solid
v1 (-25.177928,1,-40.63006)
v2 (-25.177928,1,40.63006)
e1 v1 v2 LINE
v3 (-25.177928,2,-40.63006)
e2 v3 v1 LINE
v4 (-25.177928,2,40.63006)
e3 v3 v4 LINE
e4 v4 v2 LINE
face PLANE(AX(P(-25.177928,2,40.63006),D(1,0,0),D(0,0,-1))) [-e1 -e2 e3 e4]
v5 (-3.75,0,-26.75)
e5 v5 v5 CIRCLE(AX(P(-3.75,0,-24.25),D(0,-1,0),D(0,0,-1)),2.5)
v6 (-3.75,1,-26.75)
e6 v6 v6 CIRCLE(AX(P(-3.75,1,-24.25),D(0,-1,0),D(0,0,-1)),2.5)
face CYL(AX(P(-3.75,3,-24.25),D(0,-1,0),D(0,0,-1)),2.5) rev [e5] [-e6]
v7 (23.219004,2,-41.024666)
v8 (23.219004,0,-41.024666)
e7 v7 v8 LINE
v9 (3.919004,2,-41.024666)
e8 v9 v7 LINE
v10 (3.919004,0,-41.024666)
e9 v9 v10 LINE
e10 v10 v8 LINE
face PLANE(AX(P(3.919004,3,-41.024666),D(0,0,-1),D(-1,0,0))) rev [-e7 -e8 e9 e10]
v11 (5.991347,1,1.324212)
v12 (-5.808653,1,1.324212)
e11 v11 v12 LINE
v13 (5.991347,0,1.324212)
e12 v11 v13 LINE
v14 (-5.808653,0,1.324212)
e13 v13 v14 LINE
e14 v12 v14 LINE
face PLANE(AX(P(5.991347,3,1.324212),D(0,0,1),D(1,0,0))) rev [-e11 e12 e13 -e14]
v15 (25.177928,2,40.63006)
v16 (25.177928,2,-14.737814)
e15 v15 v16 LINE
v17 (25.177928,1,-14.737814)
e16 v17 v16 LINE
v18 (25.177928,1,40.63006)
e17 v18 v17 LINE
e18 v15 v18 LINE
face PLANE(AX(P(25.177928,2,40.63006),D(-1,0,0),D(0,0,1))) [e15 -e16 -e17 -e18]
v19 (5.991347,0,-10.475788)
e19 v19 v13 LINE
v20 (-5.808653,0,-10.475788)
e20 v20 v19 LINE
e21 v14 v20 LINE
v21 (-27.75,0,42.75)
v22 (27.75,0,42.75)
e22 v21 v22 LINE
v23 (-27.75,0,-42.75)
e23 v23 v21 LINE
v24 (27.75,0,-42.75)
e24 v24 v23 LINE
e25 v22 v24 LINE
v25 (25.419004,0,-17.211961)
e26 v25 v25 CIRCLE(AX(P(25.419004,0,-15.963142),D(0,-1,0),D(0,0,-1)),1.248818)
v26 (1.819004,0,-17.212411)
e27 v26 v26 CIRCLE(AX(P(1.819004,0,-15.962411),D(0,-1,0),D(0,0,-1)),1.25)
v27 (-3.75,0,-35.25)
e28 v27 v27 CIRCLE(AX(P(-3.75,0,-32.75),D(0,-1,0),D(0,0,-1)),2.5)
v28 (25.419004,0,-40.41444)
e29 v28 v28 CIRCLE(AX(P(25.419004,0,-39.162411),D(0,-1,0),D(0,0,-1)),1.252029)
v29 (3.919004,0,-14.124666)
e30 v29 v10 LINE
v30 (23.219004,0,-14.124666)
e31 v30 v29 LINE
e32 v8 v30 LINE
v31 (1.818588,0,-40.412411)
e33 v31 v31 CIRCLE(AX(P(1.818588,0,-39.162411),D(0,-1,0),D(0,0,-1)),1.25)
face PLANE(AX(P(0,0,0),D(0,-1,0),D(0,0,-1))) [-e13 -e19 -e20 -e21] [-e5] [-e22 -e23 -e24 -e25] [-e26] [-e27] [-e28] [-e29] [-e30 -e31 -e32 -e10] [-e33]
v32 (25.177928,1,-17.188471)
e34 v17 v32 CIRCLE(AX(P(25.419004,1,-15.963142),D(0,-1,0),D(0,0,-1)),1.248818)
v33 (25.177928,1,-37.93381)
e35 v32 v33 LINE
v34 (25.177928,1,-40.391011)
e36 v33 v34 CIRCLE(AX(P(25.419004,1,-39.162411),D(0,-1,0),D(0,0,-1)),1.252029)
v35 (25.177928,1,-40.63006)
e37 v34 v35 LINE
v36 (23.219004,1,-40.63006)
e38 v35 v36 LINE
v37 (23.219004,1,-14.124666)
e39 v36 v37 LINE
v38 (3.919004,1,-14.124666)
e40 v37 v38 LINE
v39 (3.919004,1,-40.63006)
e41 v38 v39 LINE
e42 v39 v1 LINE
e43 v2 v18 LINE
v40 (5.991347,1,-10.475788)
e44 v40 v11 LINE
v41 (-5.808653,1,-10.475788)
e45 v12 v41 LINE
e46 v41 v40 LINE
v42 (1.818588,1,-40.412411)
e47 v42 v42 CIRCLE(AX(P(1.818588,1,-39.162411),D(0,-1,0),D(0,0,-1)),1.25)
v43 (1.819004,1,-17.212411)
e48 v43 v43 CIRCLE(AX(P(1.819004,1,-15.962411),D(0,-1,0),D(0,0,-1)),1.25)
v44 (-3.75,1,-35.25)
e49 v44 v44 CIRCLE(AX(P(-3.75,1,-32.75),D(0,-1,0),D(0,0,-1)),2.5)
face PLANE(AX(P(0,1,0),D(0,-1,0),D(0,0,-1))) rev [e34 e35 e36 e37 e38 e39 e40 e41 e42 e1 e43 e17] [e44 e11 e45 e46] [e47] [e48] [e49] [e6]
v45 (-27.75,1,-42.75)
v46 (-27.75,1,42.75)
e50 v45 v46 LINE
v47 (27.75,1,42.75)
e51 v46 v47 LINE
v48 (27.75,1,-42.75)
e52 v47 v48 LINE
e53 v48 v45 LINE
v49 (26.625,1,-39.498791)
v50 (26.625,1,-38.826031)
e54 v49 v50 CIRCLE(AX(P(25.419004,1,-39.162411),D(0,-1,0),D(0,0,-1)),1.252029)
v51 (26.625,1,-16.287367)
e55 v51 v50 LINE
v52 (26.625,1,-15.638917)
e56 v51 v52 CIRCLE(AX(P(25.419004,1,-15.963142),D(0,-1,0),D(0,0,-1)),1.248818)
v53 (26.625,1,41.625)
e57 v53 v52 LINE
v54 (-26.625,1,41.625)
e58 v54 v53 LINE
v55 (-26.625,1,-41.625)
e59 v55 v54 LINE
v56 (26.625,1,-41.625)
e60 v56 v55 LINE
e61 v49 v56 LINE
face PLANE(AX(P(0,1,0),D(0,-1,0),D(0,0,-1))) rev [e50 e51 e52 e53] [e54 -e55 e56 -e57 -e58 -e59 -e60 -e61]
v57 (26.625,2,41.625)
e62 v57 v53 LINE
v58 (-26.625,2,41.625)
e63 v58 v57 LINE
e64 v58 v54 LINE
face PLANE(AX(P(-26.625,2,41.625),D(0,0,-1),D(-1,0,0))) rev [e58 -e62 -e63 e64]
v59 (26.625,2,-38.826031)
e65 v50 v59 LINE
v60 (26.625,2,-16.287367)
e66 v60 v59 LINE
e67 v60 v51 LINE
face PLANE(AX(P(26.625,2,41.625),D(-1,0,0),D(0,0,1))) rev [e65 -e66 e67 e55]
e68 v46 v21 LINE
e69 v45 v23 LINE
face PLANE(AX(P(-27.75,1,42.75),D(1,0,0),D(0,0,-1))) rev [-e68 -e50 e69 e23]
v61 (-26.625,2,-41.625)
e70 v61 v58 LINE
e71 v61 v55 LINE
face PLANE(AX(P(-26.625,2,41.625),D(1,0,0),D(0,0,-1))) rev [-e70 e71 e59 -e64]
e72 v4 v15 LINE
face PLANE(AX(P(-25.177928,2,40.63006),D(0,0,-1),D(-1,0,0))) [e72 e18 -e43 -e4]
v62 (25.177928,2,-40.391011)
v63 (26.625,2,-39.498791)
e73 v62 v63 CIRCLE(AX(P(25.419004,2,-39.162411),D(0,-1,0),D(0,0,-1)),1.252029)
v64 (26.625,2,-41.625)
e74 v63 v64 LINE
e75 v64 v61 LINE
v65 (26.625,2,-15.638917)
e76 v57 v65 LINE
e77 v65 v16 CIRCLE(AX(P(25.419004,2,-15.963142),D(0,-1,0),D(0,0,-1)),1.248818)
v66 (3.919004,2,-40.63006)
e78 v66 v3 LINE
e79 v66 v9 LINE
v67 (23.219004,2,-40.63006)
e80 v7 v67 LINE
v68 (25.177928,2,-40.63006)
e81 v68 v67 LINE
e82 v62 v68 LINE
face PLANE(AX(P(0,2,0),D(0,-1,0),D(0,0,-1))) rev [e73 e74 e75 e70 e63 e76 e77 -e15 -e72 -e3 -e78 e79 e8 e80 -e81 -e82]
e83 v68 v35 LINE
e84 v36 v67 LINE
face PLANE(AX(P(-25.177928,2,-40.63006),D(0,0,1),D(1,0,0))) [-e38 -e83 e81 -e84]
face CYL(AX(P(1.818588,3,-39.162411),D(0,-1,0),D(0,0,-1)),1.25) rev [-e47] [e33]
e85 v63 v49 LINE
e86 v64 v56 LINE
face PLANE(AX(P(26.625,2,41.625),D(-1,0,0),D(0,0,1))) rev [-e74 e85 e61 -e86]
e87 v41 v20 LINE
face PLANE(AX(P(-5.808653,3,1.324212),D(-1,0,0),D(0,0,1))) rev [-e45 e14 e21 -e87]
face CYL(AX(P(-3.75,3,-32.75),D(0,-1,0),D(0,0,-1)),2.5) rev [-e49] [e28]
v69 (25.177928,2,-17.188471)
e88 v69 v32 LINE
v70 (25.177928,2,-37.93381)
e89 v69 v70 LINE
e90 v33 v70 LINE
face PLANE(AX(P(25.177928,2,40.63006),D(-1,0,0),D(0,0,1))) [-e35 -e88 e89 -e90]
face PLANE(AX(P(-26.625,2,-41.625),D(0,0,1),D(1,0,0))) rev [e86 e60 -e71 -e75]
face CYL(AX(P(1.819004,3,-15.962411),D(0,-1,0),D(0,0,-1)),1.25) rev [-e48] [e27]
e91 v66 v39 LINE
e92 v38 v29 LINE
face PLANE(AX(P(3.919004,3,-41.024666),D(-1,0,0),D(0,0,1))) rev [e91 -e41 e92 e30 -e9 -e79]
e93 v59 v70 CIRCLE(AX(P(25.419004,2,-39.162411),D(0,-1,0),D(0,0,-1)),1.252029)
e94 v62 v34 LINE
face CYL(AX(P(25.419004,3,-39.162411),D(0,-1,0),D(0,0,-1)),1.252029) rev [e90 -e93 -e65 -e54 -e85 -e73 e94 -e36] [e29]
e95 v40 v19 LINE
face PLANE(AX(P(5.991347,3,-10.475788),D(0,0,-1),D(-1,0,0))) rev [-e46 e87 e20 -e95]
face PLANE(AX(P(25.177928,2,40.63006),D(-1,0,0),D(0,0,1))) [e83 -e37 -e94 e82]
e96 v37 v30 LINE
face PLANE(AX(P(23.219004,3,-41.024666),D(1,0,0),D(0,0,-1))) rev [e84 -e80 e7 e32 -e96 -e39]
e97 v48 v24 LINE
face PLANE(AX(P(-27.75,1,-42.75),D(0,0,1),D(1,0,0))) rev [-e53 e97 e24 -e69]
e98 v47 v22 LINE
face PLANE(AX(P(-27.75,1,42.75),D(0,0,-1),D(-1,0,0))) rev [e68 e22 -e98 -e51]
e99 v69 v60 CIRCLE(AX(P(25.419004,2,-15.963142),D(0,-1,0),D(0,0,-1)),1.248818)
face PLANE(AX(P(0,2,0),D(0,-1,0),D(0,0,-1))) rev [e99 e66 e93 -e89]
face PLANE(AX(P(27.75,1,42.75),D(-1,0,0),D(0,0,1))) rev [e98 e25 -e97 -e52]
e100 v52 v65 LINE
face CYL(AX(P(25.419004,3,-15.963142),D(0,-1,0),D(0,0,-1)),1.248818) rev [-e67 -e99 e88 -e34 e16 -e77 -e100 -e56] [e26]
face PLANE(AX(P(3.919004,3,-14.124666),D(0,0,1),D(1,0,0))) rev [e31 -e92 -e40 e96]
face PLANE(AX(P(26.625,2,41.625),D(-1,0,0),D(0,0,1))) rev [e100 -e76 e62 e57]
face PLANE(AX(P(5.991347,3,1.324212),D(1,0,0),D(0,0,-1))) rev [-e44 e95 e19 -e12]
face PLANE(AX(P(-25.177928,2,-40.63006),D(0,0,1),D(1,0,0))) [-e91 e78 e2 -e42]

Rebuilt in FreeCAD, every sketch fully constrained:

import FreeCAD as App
import Part
import Sketcher
from FreeCAD import Vector

doc = App.newDocument("Part")
body = doc.addObject("PartDesign::Body", "Body")

# Sketch on XZ plane
sketch1 = doc.addObject("Sketcher::SketchObject", "Sketch")
body.addObject(sketch1)
sketch1.AttachmentSupport = (doc.XZ_Plane, [""])
sketch1.MapMode = "FlatFace"
sketch1.addGeometry(Part.LineSegment(Vector(-27.75, -42.75, 0), Vector(-27.75, 42.75, 0)), False)
sketch1.addGeometry(Part.LineSegment(Vector(-27.75, 42.75, 0), Vector(27.75, 42.75, 0)), False)
sketch1.addGeometry(Part.LineSegment(Vector(27.75, 42.75, 0), Vector(27.75, -42.75, 0)), False)
sketch1.addGeometry(Part.LineSegment(Vector(27.75, -42.75, 0), Vector(-27.75, -42.75, 0)), False)
sketch1.addConstraint(Sketcher.Constraint("Coincident", 0, 2, 1, 1))
sketch1.addConstraint(Sketcher.Constraint("Coincident", 1, 2, 2, 1))
sketch1.addConstraint(Sketcher.Constraint("Coincident", 2, 2, 3, 1))
sketch1.addConstraint(Sketcher.Constraint("Coincident", 3, 2, 0, 1))
sketch1.addConstraint(Sketcher.Constraint("Vertical", 0))
sketch1.addConstraint(Sketcher.Constraint("Horizontal", 1))
sketch1.addConstraint(Sketcher.Constraint("Vertical", 2))
sketch1.addConstraint(Sketcher.Constraint("Horizontal", 3))
sketch1.addConstraint(Sketcher.Constraint("Symmetric", 0, 2, 2, 2, -1, 1))
sketch1.addConstraint(Sketcher.Constraint("DistanceX", 1, 1, 1, 2, 55.5))
sketch1.addConstraint(Sketcher.Constraint("DistanceY", 0, 1, 0, 2, 85.5))
pad1 = doc.addObject("PartDesign::Pad", "Pad")
body.addObject(pad1)
pad1.Profile = sketch1
pad1.Length = 1
pad1.Reversed = True

# Sketch on XZ plane
sketch2 = doc.addObject("Sketcher::SketchObject", "Sketch001")
body.addObject(sketch2)
sketch2.AttachmentSupport = (doc.XZ_Plane, [""])
sketch2.MapMode = "FlatFace"
sketch2.AttachmentOffset = App.Placement(Vector(0, 0, -1), App.Rotation())
sketch2.addGeometry(Part.LineSegment(Vector(-26.625, -41.625, 0), Vector(-26.625, 41.625, 0)), False)
sketch2.addGeometry(Part.LineSegment(Vector(-26.625, 41.625, 0), Vector(26.625, 41.625, 0)), False)
sketch2.addGeometry(Part.LineSegment(Vector(26.625, 41.625, 0), Vector(26.625, -41.625, 0)), False)
sketch2.addGeometry(Part.LineSegment(Vector(26.625, -41.625, 0), Vector(-26.625, -41.625, 0)), False)
sketch2.addGeometry(Part.LineSegment(Vector(25.177928, 40.63006, 0), Vector(-25.177928, 40.63006, 0)), False)
sketch2.addGeometry(Part.LineSegment(Vector(-25.177928, 40.63006, 0), Vector(-25.177928, -40.63006, 0)), False)
sketch2.addGeometry(Part.LineSegment(Vector(-25.177928, -40.63006, 0), Vector(25.177928, -40.63006, 0)), False)
sketch2.addGeometry(Part.LineSegment(Vector(25.177928, -40.63006, 0), Vector(25.177928, 40.63006, 0)), False)
sketch2.addConstraint(Sketcher.Constraint("Coincident", 0, 2, 1, 1))
sketch2.addConstraint(Sketcher.Constraint("Coincident", 1, 2, 2, 1))
sketch2.addConstraint(Sketcher.Constraint("Coincident", 2, 2, 3, 1))
sketch2.addConstraint(Sketcher.Constraint("Coincident", 3, 2, 0, 1))
sketch2.addConstraint(Sketcher.Constraint("Coincident", 4, 2, 5, 1))
sketch2.addConstraint(Sketcher.Constraint("Coincident", 5, 2, 6, 1))
sketch2.addConstraint(Sketcher.Constraint("Coincident", 6, 2, 7, 1))
sketch2.addConstraint(Sketcher.Constraint("Coincident", 7, 2, 4, 1))
sketch2.addConstraint(Sketcher.Constraint("Vertical", 0))
sketch2.addConstraint(Sketcher.Constraint("Horizontal", 1))
sketch2.addConstraint(Sketcher.Constraint("Vertical", 2))
sketch2.addConstraint(Sketcher.Constraint("Horizontal", 3))
sketch2.addConstraint(Sketcher.Constraint("Horizontal", 4))
sketch2.addConstraint(Sketcher.Constraint("Vertical", 5))
sketch2.addConstraint(Sketcher.Constraint("Horizontal", 6))
sketch2.addConstraint(Sketcher.Constraint("Vertical", 7))
sketch2.addConstraint(Sketcher.Constraint("Symmetric", 0, 2, 2, 2, -1, 1))
sketch2.addConstraint(Sketcher.Constraint("Symmetric", 4, 2, 6, 2, -1, 1))
sketch2.addConstraint(Sketcher.Constraint("DistanceX", 1, 1, 1, 2, 53.25))
sketch2.addConstraint(Sketcher.Constraint("DistanceY", 0, 1, 0, 2, 83.25))
sketch2.addConstraint(Sketcher.Constraint("DistanceY", 5, 2, 5, 1, 81.26012))
sketch2.addConstraint(Sketcher.Constraint("DistanceX", 4, 2, 4, 1, 50.355855))
pad2 = doc.addObject("PartDesign::Pad", "Pad001")
body.addObject(pad2)
pad2.Profile = sketch2
pad2.Length = 1
pad2.Reversed = True

# Sketch on XZ plane
sketch3 = doc.addObject("Sketcher::SketchObject", "Sketch002")
body.addObject(sketch3)
sketch3.AttachmentSupport = (doc.XZ_Plane, [""])
sketch3.MapMode = "FlatFace"
sketch3.addGeometry(Part.Circle(Vector(-3.75, -32.75, 0), Vector(0, 0, 1), 2.5), False)
sketch3.addGeometry(Part.Circle(Vector(-3.75, -24.25, 0), Vector(0, 0, 1), 2.5), False)
sketch3.addGeometry(Part.Circle(Vector(1.819004, -15.962411, 0), Vector(0, 0, 1), 1.25), False)
sketch3.addGeometry(Part.Circle(Vector(25.419004, -15.963142, 0), Vector(0, 0, 1), 1.248818), False)
sketch3.addGeometry(Part.Circle(Vector(1.818588, -39.162411, 0), Vector(0, 0, 1), 1.25), False)
sketch3.addGeometry(Part.Circle(Vector(25.419004, -39.162411, 0), Vector(0, 0, 1), 1.252029), False)
sketch3.addGeometry(Part.LineSegment(Vector(3.919004, -14.124666, 0), Vector(3.919004, -41.024666, 0)), False)
sketch3.addGeometry(Part.LineSegment(Vector(3.919004, -41.024666, 0), Vector(23.219004, -41.024666, 0)), False)
sketch3.addGeometry(Part.LineSegment(Vector(23.219004, -41.024666, 0), Vector(23.219004, -14.124666, 0)), False)
sketch3.addGeometry(Part.LineSegment(Vector(23.219004, -14.124666, 0), Vector(3.919004, -14.124666, 0)), False)
sketch3.addGeometry(Part.LineSegment(Vector(-5.808653, 1.324212, 0), Vector(-5.808653, -10.475788, 0)), False)
sketch3.addGeometry(Part.LineSegment(Vector(-5.808653, -10.475788, 0), Vector(5.991347, -10.475788, 0)), False)
sketch3.addGeometry(Part.LineSegment(Vector(5.991347, -10.475788, 0), Vector(5.991347, 1.324212, 0)), False)
sketch3.addGeometry(Part.LineSegment(Vector(5.991347, 1.324212, 0), Vector(-5.808653, 1.324212, 0)), False)
sketch3.addConstraint(Sketcher.Constraint("Coincident", 6, 2, 7, 1))
sketch3.addConstraint(Sketcher.Constraint("Coincident", 7, 2, 8, 1))
sketch3.addConstraint(Sketcher.Constraint("Coincident", 8, 2, 9, 1))
sketch3.addConstraint(Sketcher.Constraint("Coincident", 9, 2, 6, 1))
sketch3.addConstraint(Sketcher.Constraint("Coincident", 10, 2, 11, 1))
sketch3.addConstraint(Sketcher.Constraint("Coincident", 11, 2, 12, 1))
sketch3.addConstraint(Sketcher.Constraint("Coincident", 12, 2, 13, 1))
sketch3.addConstraint(Sketcher.Constraint("Coincident", 13, 2, 10, 1))
sketch3.addConstraint(Sketcher.Constraint("Vertical", 6))
sketch3.addConstraint(Sketcher.Constraint("Horizontal", 7))
sketch3.addConstraint(Sketcher.Constraint("Vertical", 8))
sketch3.addConstraint(Sketcher.Constraint("Horizontal", 9))
sketch3.addConstraint(Sketcher.Constraint("Vertical", 10))
sketch3.addConstraint(Sketcher.Constraint("Horizontal", 11))
sketch3.addConstraint(Sketcher.Constraint("Vertical", 12))
sketch3.addConstraint(Sketcher.Constraint("Horizontal", 13))
sketch3.addConstraint(Sketcher.Constraint("Equal", 0, 1))
sketch3.addConstraint(Sketcher.Constraint("Equal", 2, 4))
sketch3.addConstraint(Sketcher.Constraint("Horizontal", 4, 3, 5, 3))
sketch3.addConstraint(Sketcher.Constraint("Vertical", 0, 3, 1, 3))
sketch3.addConstraint(Sketcher.Constraint("Vertical", 3, 3, 5, 3))
sketch3.addConstraint(Sketcher.Constraint("Equal", 13, 10))
sketch3.addConstraint(Sketcher.Constraint("Diameter", 0, 5.0))
sketch3.addConstraint(Sketcher.Constraint("Diameter", 2, 2.5))
sketch3.addConstraint(Sketcher.Constraint("DistanceX", 7, 1, 7, 2, 19.3))
sketch3.addConstraint(Sketcher.Constraint("DistanceX", 11, 1, 11, 2, 11.8))
sketch3.addConstraint(Sketcher.Constraint("DistanceY", 6, 2, 6, 1, 26.9))
sketch3.addConstraint(Sketcher.Constraint("DistanceY", 0, 3, 1, 3, 8.5))
sketch3.addConstraint(Sketcher.Constraint("DistanceX", 2, 3, 3, 3, 23.6))
sketch3.addConstraint(Sketcher.Constraint("DistanceY", 4, 3, 2, 3, 23.2))
sketch3.addConstraint(Sketcher.Constraint("DistanceX", 6, 2, 5, 3, 21.5))
sketch3.addConstraint(Sketcher.Constraint("Diameter", 5, 2.504058))
sketch3.addConstraint(Sketcher.Constraint("DistanceX", 0, 3, -1, 1, 3.75))
sketch3.addConstraint(Sketcher.Constraint("DistanceY", 0, 3, -1, 1, 32.75))
sketch3.addConstraint(Sketcher.Constraint("Diameter", 3, 2.497637))
sketch3.addConstraint(Sketcher.Constraint("DistanceY", 2, 3, -1, 1, 15.962411))
sketch3.addConstraint(Sketcher.Constraint("DistanceY", 10, 2, -1, 1, 10.475788))
sketch3.addConstraint(Sketcher.Constraint("DistanceY", 3, 3, 2, 3, 0.000732))
sketch3.addConstraint(Sketcher.Constraint("DistanceX", -1, 1, 2, 3, 1.819004))
sketch3.addConstraint(Sketcher.Constraint("DistanceX", -1, 1, 4, 3, 1.818588))
sketch3.addConstraint(Sketcher.Constraint("DistanceY", 6, 2, -1, 1, 41.024666))
sketch3.addConstraint(Sketcher.Constraint("DistanceX", 10, 2, -1, 1, 5.808653))
pocket1 = doc.addObject("PartDesign::Pocket", "Pocket")
body.addObject(pocket1)
pocket1.Profile = sketch3
pocket1.Length = 3

doc.recompute()
